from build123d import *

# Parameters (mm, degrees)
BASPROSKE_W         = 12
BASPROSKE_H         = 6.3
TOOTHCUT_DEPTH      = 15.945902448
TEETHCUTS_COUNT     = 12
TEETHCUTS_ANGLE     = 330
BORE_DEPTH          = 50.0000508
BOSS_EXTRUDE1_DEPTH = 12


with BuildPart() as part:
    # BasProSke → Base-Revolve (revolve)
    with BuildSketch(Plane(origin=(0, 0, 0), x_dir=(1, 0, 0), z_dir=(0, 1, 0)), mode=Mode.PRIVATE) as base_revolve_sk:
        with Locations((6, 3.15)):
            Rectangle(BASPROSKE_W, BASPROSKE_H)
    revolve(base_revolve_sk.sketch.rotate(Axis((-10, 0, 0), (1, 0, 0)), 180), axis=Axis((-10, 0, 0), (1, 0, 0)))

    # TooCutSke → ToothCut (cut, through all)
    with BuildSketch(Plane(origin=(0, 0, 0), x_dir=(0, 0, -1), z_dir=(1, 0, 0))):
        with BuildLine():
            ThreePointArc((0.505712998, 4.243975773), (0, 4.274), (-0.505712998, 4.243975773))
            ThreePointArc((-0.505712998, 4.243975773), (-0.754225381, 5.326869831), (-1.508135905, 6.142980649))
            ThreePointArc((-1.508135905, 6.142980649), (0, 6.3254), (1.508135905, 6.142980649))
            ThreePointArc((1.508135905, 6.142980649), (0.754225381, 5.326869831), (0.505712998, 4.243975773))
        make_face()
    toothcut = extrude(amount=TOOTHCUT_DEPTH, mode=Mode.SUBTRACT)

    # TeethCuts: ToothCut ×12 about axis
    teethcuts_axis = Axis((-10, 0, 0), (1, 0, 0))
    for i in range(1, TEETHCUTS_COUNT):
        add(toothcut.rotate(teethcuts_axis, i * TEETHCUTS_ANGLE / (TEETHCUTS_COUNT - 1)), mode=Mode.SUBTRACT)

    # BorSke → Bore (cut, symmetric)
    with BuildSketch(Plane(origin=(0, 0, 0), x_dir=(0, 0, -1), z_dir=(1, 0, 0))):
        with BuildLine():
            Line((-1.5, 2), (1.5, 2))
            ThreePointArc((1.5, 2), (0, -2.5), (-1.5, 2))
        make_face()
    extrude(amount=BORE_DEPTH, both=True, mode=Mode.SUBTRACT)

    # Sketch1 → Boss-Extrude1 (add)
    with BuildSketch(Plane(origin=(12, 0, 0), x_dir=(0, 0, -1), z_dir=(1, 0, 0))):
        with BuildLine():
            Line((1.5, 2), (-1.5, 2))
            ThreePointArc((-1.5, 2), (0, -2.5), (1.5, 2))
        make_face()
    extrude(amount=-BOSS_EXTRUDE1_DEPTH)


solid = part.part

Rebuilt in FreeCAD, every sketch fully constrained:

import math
import FreeCAD as App
import Part
import Sketcher

doc = App.newDocument("Part")
body = doc.addObject("PartDesign::Body", "Body")

sketch1 = doc.addObject("Sketcher::SketchObject", "Sketch")
body.addObject(sketch1)
sketch1.AttachmentSupport = (doc.XZ_Plane, [""])
sketch1.MapMode = "FlatFace"
sketch1.addGeometry(Part.LineSegment(App.Vector(0, -6, 0), App.Vector(0, 0, 0)), False)
sketch1.addGeometry(Part.LineSegment(App.Vector(0, 0, 0), App.Vector(12, 0, 0)), False)
sketch1.addGeometry(Part.LineSegment(App.Vector(12, 0, 0), App.Vector(12, -6, 0)), False)
sketch1.addGeometry(Part.LineSegment(App.Vector(12, -6, 0), App.Vector(0, -6, 0)), False)
sketch1.addConstraint(Sketcher.Constraint("Coincident", 0, 2, 1, 1))
sketch1.addConstraint(Sketcher.Constraint("Coincident", 1, 2, 2, 1))
sketch1.addConstraint(Sketcher.Constraint("Coincident", 2, 2, 3, 1))
sketch1.addConstraint(Sketcher.Constraint("Coincident", 3, 2, 0, 1))
sketch1.addConstraint(Sketcher.Constraint("Vertical", 0))
sketch1.addConstraint(Sketcher.Constraint("Horizontal", 1))
sketch1.addConstraint(Sketcher.Constraint("Vertical", 2))
sketch1.addConstraint(Sketcher.Constraint("Horizontal", 3))
sketch1.addConstraint(Sketcher.Constraint("Coincident", 0, 2, -1, 1))
sketch1.addConstraint(Sketcher.Constraint("DistanceX", 1, 1, 1, 2, 12.0))
sketch1.addConstraint(Sketcher.Constraint("DistanceY", 0, 1, 0, 2, 6.3))
revolution = doc.addObject("PartDesign::Revolution", "Revolution")
body.addObject(revolution)
revolution.Profile = sketch1
revolution.ReferenceAxis = (sketch1, ["H_Axis"])
revolution.Angle = 360

sketch2 = doc.addObject("Sketcher::SketchObject", "Sketch001")
body.addObject(sketch2)
sketch2.AttachmentSupport = (doc.YZ_Plane, [""])
sketch2.MapMode = "FlatFace"
sketch2.addGeometry(Part.ArcOfCircle(Part.Circle(App.Vector(0, 0, 0), App.Vector(0, 0, 1), 4.3), math.radians(-6.8), math.radians(6.8)), False)
sketch2.addGeometry(Part.ArcOfCircle(Part.Circle(App.Vector(4.3, -2.7, 0), App.Vector(0, 0, 1), 2.2), math.radians(32), math.radians(92)), False)
sketch2.addGeometry(Part.ArcOfCircle(Part.Circle(App.Vector(0, 0, 0), App.Vector(0, 0, 1), 6.3), math.radians(-14), math.radians(14)), False)
sketch2.addGeometry(Part.ArcOfCircle(Part.Circle(App.Vector(4.3, 2.7, 0), App.Vector(0, 0, 1), 2.2), math.radians(-92), math.radians(-32)), False)
sketch2.addConstraint(Sketcher.Constraint("Coincident", 0, 1, 1, 2))
sketch2.addConstraint(Sketcher.Constraint("Coincident", 1, 1, 2, 1))
sketch2.addConstraint(Sketcher.Constraint("Coincident", 2, 2, 3, 2))
sketch2.addConstraint(Sketcher.Constraint("Coincident", 3, 1, 0, 2))
sketch2.addConstraint(Sketcher.Constraint("Coincident", 0, 3, -1, 1))
sketch2.addConstraint(Sketcher.Constraint("Coincident", 2, 3, -1, 1))
sketch2.addConstraint(Sketcher.Constraint("Equal", 1, 3))
sketch2.addConstraint(Sketcher.Constraint("Symmetric", 1, 3, 3, 3, -1))
sketch2.addConstraint(Sketcher.Constraint("Radius", 1, 2.16))
sketch2.addConstraint(Sketcher.Constraint("Radius", 0, 4.274))
sketch2.addConstraint(Sketcher.Constraint("Radius", 2, 6.3254))
sketch2.addConstraint(Sketcher.Constraint("DistanceX", -1, 1, 1, 1, 6.142981))
sketch2.addConstraint(Sketcher.Constraint("DistanceY", 1, 3, 3, 3, 5.328851))
pocket1 = doc.addObject("PartDesign::Pocket", "Pocket")
body.addObject(pocket1)
pocket1.Profile = sketch2
pocket1.Type = "ThroughAll"
pocket1.Reversed = True
doc.recompute()

polarpattern = doc.addObject("PartDesign::PolarPattern", "PolarPattern")
body.addObject(polarpattern)
polarpattern.Originals = [pocket1]
polarpattern.Axis = (doc.X_Axis, [""])
polarpattern.Angle = 360
polarpattern.Occurrences = 12
body.Tip = polarpattern

sketch3 = doc.addObject("Sketcher::SketchObject", "Sketch002")
body.addObject(sketch3)
sketch3.AttachmentSupport = (doc.YZ_Plane, [""])
sketch3.MapMode = "FlatFace"
sketch3.addGeometry(Part.LineSegment(App.Vector(2, -1.5, 0), App.Vector(2, 1.5, 0)), False)
sketch3.addGeometry(Part.ArcOfCircle(Part.Circle(App.Vector(0, 0, 0), App.Vector(0, 0, 1), 2.5), math.radians(37), math.radians(323)), False)
sketch3.addConstraint(Sketcher.Constraint("Coincident", 0, 1, 1, 2))
sketch3.addConstraint(Sketcher.Constraint("Coincident", 1, 1, 0, 2))
sketch3.addConstraint(Sketcher.Constraint("Vertical", 0))
sketch3.addConstraint(Sketcher.Constraint("Coincident", 1, 3, -1, 1))
sketch3.addConstraint(Sketcher.Constraint("Radius", 1, 2.5))
sketch3.addConstraint(Sketcher.Constraint("DistanceY", 0, 1, 0, 2, 3.0))
pocket2 = doc.addObject("PartDesign::Pocket", "Pocket001")
body.addObject(pocket2)
pocket2.Profile = sketch3
pocket2.Length = 100.000102
pocket2.Midplane = True

sketch4 = doc.addObject("Sketcher::SketchObject", "Sketch003")
body.addObject(sketch4)
sketch4.AttachmentSupport = (doc.YZ_Plane, [""])
sketch4.MapMode = "FlatFace"
sketch4.AttachmentOffset = App.Placement(App.Vector(0, 0, 12), App.Rotation())
sketch4.addGeometry(Part.LineSegment(App.Vector(2, -1.5, 0), App.Vector(2, 1.5, 0)), False)
sketch4.addGeometry(Part.ArcOfCircle(Part.Circle(App.Vector(0, 0, 0), App.Vector(0, 0, 1), 2.5), math.radians(37), math.radians(323)), False)
sketch4.addConstraint(Sketcher.Constraint("Coincident", 0, 1, 1, 2))
sketch4.addConstraint(Sketcher.Constraint("Coincident", 1, 1, 0, 2))
sketch4.addConstraint(Sketcher.Constraint("Vertical", 0))
sketch4.addConstraint(Sketcher.Constraint("Coincident", 1, 3, -1, 1))
sketch4.addConstraint(Sketcher.Constraint("Radius", 1, 2.5))
sketch4.addConstraint(Sketcher.Constraint("DistanceY", 0, 1, 0, 2, 3.0))
pad1 = doc.addObject("PartDesign::Pad", "Pad")
body.addObject(pad1)
pad1.Profile = sketch4
pad1.Length = 12
pad1.Reversed = True

doc.recompute()
